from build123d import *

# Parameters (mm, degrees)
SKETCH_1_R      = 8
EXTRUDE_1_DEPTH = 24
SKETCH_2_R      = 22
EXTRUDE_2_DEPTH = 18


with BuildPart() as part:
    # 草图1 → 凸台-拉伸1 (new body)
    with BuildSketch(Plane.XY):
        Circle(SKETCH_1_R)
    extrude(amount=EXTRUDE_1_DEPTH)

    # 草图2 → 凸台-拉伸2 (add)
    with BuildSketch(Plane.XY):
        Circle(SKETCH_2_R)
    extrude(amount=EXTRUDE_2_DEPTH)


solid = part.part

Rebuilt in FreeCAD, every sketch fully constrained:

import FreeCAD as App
import Part
import Sketcher

V = App.Vector
Q = App.Units.Quantity

doc = App.newDocument("Part")
body = doc.addObject("PartDesign::Body", "Body")

sketch1 = body.newObject("Sketcher::SketchObject", "Sketch")
sketch1.AttachmentSupport = (doc.getObject("XY_Plane"), [""])
sketch1.MapMode = "FlatFace"
sketch1.addGeometry(Part.Circle(V(0, 0, 0), V(0, 0, 1), 8), False)
sketch1.addConstraint([
    Sketcher.Constraint("Coincident", 0, 3, -1, 1),
    Sketcher.Constraint("Diameter", 0, Q("16 mm")),
])
pad1 = body.newObject("PartDesign::Pad", "Pad")
pad1.Profile = sketch1
pad1.Length = 24

sketch2 = body.newObject("Sketcher::SketchObject", "Sketch001")
sketch2.AttachmentSupport = (doc.getObject("XY_Plane"), [""])
sketch2.MapMode = "FlatFace"
sketch2.addGeometry(Part.Circle(V(0, 0, 0), V(0, 0, 1), 22), False)
sketch2.addConstraint([
    Sketcher.Constraint("Coincident", 0, 3, -1, 1),
    Sketcher.Constraint("Diameter", 0, Q("44 mm")),
])
pad2 = body.newObject("PartDesign::Pad", "Pad001")
pad2.Profile = sketch2
pad2.Length = 18

doc.recompute()
